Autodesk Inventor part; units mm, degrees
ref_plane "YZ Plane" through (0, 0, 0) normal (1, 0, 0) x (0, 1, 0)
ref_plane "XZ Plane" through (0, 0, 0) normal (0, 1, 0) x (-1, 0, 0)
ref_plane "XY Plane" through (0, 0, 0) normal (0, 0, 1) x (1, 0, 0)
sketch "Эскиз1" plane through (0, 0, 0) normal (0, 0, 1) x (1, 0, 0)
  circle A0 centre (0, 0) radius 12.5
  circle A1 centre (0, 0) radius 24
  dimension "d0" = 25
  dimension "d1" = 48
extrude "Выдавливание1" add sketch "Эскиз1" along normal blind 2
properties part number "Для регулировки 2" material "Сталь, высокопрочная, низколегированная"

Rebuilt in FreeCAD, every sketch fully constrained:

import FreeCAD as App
import Part
import Sketcher

V = App.Vector
Q = App.Units.Quantity

doc = App.newDocument("Part")
body = doc.addObject("PartDesign::Body", "Body")

# Sketch on XY plane
sketch1 = body.newObject("Sketcher::SketchObject", "Sketch")
sketch1.AttachmentSupport = (doc.getObject("XY_Plane"), [""])
sketch1.MapMode = "FlatFace"
sketch1.addGeometry([
    Part.Circle(V(0, 0, 0), V(0, 0, 1), 24),
    Part.Circle(V(0, 0, 0), V(0, 0, 1), 12.5),
], False)
sketch1.addConstraint([
    Sketcher.Constraint("Coincident", 0, 3, -1, 1),
    Sketcher.Constraint("Coincident", 1, 3, -1, 1),
    Sketcher.Constraint("Diameter", 0, Q("48 mm")),
    Sketcher.Constraint("Diameter", 1, Q("25 mm")),
])
pad1 = body.newObject("PartDesign::Pad", "Pad")
pad1.Profile = sketch1
pad1.Length = 2

doc.recompute()
